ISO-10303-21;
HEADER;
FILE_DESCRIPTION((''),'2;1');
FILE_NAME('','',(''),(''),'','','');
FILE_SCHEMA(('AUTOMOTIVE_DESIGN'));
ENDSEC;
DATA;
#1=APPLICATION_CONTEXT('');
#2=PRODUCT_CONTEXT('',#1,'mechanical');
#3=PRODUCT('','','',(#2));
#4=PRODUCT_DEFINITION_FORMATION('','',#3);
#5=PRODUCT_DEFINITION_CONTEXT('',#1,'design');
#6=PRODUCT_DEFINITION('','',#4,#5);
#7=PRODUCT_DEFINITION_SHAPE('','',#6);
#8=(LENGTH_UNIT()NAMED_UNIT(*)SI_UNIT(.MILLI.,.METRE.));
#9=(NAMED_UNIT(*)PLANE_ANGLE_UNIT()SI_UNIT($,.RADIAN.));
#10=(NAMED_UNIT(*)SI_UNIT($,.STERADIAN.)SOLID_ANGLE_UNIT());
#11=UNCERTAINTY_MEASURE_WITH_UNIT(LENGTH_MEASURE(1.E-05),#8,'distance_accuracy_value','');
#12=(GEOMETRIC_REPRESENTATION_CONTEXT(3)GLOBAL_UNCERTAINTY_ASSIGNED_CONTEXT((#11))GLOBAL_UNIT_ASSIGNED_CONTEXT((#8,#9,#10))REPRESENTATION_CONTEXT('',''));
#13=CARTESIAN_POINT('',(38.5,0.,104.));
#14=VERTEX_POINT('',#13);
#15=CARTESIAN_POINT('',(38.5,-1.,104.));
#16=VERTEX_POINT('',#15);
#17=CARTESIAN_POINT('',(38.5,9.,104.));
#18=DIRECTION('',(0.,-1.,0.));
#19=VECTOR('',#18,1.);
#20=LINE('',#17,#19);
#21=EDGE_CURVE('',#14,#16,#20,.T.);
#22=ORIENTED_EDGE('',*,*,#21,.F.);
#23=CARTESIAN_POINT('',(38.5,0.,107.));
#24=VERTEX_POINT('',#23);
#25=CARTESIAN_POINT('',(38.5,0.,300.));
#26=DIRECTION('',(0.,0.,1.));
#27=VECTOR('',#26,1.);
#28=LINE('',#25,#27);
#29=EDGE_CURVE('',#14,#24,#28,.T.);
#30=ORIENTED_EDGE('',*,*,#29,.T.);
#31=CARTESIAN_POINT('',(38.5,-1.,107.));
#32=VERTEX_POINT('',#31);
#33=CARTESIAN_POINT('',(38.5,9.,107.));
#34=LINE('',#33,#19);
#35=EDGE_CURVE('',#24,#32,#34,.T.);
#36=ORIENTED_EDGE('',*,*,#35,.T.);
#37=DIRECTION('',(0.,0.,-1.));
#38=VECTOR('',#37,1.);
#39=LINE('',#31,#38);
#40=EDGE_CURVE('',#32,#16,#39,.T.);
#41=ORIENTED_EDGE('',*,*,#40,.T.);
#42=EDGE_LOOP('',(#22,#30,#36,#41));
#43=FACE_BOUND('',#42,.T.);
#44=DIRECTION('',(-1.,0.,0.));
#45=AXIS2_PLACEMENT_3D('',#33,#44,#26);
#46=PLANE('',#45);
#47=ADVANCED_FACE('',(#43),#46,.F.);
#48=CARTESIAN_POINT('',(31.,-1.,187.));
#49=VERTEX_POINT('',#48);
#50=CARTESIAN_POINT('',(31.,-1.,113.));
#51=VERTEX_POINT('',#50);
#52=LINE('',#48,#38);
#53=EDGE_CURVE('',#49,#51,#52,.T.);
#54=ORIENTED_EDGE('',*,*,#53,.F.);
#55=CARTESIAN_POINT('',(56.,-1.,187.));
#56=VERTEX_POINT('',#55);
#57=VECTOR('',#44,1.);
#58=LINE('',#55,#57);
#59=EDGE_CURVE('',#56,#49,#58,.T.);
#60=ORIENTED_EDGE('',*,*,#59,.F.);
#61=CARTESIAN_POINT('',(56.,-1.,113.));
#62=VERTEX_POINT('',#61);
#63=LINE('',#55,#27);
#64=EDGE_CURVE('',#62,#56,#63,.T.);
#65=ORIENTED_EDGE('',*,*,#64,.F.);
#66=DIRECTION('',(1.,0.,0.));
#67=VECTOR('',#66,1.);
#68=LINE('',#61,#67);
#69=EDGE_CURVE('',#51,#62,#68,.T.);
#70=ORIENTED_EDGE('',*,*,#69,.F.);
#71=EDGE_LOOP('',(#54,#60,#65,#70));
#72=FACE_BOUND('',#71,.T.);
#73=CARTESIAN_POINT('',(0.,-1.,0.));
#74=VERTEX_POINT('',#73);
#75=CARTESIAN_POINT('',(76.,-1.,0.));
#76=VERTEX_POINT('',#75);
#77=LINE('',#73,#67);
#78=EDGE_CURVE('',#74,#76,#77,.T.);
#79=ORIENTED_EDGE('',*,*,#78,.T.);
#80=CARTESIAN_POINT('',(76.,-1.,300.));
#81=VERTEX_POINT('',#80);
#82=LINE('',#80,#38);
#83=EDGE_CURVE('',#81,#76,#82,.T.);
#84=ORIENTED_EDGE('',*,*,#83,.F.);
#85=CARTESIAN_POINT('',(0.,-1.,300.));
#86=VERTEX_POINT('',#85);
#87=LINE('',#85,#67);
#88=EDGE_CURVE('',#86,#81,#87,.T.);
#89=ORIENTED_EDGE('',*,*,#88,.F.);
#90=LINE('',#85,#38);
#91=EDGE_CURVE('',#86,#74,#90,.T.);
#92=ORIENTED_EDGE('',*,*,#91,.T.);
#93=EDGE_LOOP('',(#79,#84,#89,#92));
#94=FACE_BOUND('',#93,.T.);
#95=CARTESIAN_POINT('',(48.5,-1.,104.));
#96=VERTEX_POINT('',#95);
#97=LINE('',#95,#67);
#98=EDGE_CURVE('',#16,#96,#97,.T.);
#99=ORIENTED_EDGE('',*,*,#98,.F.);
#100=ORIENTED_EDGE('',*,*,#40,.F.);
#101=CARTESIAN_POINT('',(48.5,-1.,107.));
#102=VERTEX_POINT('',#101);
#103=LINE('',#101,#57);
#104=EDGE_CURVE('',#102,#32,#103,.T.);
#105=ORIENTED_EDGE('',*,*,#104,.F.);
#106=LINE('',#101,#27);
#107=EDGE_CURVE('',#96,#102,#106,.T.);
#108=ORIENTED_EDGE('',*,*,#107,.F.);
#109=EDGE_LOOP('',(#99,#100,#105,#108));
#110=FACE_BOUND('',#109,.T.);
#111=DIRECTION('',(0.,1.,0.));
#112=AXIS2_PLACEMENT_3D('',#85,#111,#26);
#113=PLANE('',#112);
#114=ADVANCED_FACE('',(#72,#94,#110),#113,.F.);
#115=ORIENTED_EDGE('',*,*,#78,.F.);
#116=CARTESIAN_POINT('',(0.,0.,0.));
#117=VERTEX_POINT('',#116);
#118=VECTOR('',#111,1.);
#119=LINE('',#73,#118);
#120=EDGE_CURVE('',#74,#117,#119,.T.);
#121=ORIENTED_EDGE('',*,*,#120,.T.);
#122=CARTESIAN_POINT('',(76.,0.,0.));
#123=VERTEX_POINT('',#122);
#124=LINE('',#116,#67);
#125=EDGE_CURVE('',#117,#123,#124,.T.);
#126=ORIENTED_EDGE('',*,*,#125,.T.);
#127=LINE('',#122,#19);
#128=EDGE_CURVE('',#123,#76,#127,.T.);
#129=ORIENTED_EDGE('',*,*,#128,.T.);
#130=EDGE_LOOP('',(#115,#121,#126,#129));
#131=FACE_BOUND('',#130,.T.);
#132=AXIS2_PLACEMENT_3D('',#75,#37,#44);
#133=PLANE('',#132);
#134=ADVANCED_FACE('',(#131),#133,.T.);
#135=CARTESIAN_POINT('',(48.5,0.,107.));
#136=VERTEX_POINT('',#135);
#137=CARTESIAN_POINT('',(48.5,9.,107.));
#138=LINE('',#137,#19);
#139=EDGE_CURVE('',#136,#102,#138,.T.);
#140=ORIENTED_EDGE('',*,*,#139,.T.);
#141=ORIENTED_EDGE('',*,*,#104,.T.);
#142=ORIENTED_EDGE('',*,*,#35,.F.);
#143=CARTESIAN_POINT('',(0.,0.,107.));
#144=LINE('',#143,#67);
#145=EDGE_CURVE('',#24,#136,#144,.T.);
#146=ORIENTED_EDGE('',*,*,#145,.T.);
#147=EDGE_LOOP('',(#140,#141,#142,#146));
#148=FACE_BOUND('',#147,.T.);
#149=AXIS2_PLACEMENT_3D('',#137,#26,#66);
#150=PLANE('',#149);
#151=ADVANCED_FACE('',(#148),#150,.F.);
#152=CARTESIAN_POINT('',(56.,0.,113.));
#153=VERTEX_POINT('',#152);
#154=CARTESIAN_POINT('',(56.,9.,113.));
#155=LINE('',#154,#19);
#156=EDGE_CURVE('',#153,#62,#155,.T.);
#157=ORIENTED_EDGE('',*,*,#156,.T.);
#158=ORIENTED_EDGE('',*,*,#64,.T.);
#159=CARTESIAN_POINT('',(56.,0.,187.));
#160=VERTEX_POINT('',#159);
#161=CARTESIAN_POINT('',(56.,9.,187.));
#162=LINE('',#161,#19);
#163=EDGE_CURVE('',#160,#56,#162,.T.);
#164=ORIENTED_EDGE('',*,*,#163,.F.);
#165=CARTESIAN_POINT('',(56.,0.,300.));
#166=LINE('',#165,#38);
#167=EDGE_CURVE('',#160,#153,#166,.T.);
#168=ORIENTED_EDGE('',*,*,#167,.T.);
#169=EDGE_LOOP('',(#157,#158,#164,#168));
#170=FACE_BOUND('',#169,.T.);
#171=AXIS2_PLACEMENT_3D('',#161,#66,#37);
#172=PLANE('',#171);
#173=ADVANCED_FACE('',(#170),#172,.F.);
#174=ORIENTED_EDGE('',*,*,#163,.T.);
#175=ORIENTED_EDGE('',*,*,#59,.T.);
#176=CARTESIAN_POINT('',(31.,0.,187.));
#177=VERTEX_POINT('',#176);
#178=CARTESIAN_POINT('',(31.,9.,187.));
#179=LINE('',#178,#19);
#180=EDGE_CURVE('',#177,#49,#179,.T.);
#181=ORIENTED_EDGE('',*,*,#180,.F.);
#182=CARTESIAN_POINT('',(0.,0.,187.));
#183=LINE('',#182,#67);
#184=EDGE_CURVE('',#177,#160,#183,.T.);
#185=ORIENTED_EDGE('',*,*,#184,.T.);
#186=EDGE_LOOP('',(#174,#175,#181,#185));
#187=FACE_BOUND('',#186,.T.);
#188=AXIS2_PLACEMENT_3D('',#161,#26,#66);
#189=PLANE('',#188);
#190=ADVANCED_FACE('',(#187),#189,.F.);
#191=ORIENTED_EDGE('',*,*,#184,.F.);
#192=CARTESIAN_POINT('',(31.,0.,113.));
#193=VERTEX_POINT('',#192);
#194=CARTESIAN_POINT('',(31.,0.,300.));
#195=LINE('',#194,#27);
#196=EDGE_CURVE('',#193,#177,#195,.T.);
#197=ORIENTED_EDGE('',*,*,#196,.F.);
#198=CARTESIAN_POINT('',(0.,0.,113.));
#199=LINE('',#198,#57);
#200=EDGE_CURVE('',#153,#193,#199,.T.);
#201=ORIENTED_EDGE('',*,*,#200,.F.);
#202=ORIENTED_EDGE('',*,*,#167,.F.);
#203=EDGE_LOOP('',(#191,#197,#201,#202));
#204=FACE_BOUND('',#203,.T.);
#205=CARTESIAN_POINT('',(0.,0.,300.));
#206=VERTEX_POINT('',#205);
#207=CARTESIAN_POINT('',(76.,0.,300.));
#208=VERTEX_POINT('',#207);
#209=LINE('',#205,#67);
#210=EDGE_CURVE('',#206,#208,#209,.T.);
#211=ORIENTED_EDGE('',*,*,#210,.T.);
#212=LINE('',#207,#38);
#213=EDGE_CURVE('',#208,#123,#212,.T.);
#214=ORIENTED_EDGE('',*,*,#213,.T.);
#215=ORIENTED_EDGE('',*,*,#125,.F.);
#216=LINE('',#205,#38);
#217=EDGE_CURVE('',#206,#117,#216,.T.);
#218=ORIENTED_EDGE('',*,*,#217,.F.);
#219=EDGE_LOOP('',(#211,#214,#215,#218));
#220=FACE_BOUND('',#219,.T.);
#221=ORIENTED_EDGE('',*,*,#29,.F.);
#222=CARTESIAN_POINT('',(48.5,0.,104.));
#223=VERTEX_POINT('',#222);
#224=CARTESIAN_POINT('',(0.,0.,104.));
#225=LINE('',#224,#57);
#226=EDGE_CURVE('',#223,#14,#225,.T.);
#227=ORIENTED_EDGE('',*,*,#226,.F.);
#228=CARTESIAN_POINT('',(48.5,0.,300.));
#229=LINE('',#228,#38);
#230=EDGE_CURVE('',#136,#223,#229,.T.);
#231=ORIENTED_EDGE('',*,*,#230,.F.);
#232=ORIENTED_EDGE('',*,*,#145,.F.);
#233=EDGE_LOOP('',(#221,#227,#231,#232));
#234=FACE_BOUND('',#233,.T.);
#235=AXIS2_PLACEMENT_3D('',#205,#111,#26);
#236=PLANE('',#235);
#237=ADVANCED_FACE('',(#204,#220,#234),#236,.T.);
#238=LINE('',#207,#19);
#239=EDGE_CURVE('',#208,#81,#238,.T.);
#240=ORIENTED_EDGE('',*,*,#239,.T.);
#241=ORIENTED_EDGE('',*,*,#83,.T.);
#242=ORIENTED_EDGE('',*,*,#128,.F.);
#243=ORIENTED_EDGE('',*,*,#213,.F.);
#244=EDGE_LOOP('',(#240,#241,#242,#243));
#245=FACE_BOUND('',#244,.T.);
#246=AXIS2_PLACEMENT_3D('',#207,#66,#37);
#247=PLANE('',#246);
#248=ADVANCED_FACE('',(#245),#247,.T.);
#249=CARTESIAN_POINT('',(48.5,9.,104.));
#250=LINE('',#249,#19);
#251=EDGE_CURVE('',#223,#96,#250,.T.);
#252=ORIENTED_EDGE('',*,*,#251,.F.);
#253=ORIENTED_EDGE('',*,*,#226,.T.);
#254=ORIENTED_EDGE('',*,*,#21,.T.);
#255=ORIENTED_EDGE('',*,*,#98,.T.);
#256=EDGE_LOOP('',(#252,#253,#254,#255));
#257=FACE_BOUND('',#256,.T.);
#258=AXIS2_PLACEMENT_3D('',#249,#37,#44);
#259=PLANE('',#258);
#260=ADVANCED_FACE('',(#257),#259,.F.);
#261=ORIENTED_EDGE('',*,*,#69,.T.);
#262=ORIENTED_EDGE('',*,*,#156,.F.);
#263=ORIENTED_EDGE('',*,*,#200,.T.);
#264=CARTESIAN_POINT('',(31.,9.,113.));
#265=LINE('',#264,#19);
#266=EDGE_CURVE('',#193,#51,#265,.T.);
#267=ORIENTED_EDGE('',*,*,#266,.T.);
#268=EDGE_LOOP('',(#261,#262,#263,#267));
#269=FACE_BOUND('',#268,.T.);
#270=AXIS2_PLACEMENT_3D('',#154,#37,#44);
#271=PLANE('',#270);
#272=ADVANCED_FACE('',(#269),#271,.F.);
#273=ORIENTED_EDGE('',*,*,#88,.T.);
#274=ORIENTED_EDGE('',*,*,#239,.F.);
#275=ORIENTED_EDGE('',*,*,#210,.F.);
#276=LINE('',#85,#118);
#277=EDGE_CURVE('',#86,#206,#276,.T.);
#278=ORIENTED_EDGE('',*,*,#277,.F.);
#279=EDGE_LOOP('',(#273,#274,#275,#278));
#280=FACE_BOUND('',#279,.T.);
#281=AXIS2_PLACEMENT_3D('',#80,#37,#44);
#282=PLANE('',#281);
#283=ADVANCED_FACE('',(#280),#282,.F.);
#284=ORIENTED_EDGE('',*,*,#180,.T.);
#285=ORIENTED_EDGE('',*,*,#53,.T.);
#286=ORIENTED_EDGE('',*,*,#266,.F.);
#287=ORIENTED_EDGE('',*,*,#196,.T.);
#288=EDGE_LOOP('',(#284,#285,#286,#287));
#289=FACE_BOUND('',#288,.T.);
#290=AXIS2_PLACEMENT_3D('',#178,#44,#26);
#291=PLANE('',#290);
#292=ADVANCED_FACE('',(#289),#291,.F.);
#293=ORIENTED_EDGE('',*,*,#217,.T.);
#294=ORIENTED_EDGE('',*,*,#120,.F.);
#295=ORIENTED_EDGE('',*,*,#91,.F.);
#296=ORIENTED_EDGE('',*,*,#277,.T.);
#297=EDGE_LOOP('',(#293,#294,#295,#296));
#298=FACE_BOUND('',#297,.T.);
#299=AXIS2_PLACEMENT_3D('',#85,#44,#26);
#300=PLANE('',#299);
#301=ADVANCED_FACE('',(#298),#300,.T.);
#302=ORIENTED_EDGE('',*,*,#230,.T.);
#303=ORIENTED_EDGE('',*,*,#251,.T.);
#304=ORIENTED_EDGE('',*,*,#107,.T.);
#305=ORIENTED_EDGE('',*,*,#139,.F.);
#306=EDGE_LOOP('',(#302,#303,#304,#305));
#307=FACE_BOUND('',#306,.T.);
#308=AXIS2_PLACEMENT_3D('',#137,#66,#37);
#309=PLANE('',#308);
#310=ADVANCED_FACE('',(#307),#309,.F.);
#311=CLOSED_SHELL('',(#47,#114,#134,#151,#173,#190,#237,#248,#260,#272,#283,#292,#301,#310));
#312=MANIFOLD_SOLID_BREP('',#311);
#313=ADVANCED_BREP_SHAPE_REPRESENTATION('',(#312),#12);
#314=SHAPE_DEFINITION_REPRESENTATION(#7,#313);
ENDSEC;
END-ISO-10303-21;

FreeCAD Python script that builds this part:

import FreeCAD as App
import Part
import Sketcher
Q = App.Units.Quantity

doc = App.newDocument("Part")
body = doc.addObject("PartDesign::Body", "Body")

# Sketch on XY plane
sketch1 = doc.addObject("Sketcher::SketchObject", "Sketch")
body.addObject(sketch1)
sketch1.AttachmentSupport = (doc.XY_Plane, [""])
sketch1.MapMode = "FlatFace"
sketch1.addGeometry([
    Part.LineSegment(App.Vector(0, 0, 0), App.Vector(0, -1, 0)),
    Part.LineSegment(App.Vector(0, -1, 0), App.Vector(76, -1, 0)),
    Part.LineSegment(App.Vector(76, -1, 0), App.Vector(76, 0, 0)),
    Part.LineSegment(App.Vector(76, 0, 0), App.Vector(0, 0, 0)),
], False)
sketch1.addConstraint([
    Sketcher.Constraint("Coincident", 0, 2, 1, 1),
    Sketcher.Constraint("Coincident", 1, 2, 2, 1),
    Sketcher.Constraint("Coincident", 2, 2, 3, 1),
    Sketcher.Constraint("Coincident", 3, 2, 0, 1),
    Sketcher.Constraint("Vertical", 0),
    Sketcher.Constraint("Horizontal", 1),
    Sketcher.Constraint("Vertical", 2),
    Sketcher.Constraint("Horizontal", 3),
    Sketcher.Constraint("Coincident", 3, 2, -1, 1),
    Sketcher.Constraint("DistanceX", 1, 1, 1, 2, Q("76 mm")),
    Sketcher.Constraint("DistanceY", 0, 2, 0, 1, Q("1 mm")),
])
pad1 = doc.addObject("PartDesign::Pad", "Pad")
body.addObject(pad1)
pad1.Profile = sketch1
pad1.Length = 300

# Sketch on XZ plane
sketch2 = doc.addObject("Sketcher::SketchObject", "Sketch001")
body.addObject(sketch2)
sketch2.AttachmentSupport = (doc.XZ_Plane, [""])
sketch2.MapMode = "FlatFace"
sketch2.AttachmentOffset = App.Placement(App.Vector(0, 0, 1), App.Rotation())
sketch2.addGeometry([
    Part.LineSegment(App.Vector(31, 187, 0), App.Vector(31, 113, 0)),  # 0
    Part.LineSegment(App.Vector(31, 113, 0), App.Vector(56, 113, 0)),  # 1
    Part.LineSegment(App.Vector(56, 113, 0), App.Vector(56, 187, 0)),  # 2
    Part.LineSegment(App.Vector(56, 187, 0), App.Vector(31, 187, 0)),  # 3
    Part.LineSegment(App.Vector(38.5, 107, 0), App.Vector(38.5, 104, 0)),  # 4
    Part.LineSegment(App.Vector(38.5, 104, 0), App.Vector(48.5, 104, 0)),  # 5
    Part.LineSegment(App.Vector(48.5, 104, 0), App.Vector(48.5, 107, 0)),  # 6
    Part.LineSegment(App.Vector(48.5, 107, 0), App.Vector(38.5, 107, 0)),  # 7
], False)
sketch2.addConstraint([
    Sketcher.Constraint("Coincident", 0, 2, 1, 1),
    Sketcher.Constraint("Coincident", 1, 2, 2, 1),
    Sketcher.Constraint("Coincident", 2, 2, 3, 1),
    Sketcher.Constraint("Coincident", 3, 2, 0, 1),
    Sketcher.Constraint("Coincident", 4, 2, 5, 1),
    Sketcher.Constraint("Coincident", 5, 2, 6, 1),
    Sketcher.Constraint("Coincident", 6, 2, 7, 1),
    Sketcher.Constraint("Coincident", 7, 2, 4, 1),
    Sketcher.Constraint("Vertical", 0),
    Sketcher.Constraint("Horizontal", 1),
    Sketcher.Constraint("Vertical", 2),
    Sketcher.Constraint("Horizontal", 3),
    Sketcher.Constraint("Vertical", 4),
    Sketcher.Constraint("Horizontal", 5),
    Sketcher.Constraint("Vertical", 6),
    Sketcher.Constraint("Horizontal", 7),
    Sketcher.Constraint("DistanceX", 1, 1, 1, 2, Q("25 mm")),
    Sketcher.Constraint("DistanceX", 5, 1, 5, 2, Q("10 mm")),
    Sketcher.Constraint("DistanceY", 0, 2, 0, 1, Q("74 mm")),
    Sketcher.Constraint("DistanceY", 4, 2, 4, 1, Q("3 mm")),
    Sketcher.Constraint("DistanceX", -1, 1, 0, 2, Q("31 mm")),
    Sketcher.Constraint("DistanceY", -1, 1, 0, 2, Q("113 mm")),
    Sketcher.Constraint("DistanceY", -1, 1, 4, 2, Q("104 mm")),
    Sketcher.Constraint("DistanceX", -1, 1, 4, 2, Q("38.5 mm")),
])
pocket1 = doc.addObject("PartDesign::Pocket", "Pocket")
body.addObject(pocket1)
pocket1.Profile = sketch2
pocket1.Length = 10

doc.recompute()
